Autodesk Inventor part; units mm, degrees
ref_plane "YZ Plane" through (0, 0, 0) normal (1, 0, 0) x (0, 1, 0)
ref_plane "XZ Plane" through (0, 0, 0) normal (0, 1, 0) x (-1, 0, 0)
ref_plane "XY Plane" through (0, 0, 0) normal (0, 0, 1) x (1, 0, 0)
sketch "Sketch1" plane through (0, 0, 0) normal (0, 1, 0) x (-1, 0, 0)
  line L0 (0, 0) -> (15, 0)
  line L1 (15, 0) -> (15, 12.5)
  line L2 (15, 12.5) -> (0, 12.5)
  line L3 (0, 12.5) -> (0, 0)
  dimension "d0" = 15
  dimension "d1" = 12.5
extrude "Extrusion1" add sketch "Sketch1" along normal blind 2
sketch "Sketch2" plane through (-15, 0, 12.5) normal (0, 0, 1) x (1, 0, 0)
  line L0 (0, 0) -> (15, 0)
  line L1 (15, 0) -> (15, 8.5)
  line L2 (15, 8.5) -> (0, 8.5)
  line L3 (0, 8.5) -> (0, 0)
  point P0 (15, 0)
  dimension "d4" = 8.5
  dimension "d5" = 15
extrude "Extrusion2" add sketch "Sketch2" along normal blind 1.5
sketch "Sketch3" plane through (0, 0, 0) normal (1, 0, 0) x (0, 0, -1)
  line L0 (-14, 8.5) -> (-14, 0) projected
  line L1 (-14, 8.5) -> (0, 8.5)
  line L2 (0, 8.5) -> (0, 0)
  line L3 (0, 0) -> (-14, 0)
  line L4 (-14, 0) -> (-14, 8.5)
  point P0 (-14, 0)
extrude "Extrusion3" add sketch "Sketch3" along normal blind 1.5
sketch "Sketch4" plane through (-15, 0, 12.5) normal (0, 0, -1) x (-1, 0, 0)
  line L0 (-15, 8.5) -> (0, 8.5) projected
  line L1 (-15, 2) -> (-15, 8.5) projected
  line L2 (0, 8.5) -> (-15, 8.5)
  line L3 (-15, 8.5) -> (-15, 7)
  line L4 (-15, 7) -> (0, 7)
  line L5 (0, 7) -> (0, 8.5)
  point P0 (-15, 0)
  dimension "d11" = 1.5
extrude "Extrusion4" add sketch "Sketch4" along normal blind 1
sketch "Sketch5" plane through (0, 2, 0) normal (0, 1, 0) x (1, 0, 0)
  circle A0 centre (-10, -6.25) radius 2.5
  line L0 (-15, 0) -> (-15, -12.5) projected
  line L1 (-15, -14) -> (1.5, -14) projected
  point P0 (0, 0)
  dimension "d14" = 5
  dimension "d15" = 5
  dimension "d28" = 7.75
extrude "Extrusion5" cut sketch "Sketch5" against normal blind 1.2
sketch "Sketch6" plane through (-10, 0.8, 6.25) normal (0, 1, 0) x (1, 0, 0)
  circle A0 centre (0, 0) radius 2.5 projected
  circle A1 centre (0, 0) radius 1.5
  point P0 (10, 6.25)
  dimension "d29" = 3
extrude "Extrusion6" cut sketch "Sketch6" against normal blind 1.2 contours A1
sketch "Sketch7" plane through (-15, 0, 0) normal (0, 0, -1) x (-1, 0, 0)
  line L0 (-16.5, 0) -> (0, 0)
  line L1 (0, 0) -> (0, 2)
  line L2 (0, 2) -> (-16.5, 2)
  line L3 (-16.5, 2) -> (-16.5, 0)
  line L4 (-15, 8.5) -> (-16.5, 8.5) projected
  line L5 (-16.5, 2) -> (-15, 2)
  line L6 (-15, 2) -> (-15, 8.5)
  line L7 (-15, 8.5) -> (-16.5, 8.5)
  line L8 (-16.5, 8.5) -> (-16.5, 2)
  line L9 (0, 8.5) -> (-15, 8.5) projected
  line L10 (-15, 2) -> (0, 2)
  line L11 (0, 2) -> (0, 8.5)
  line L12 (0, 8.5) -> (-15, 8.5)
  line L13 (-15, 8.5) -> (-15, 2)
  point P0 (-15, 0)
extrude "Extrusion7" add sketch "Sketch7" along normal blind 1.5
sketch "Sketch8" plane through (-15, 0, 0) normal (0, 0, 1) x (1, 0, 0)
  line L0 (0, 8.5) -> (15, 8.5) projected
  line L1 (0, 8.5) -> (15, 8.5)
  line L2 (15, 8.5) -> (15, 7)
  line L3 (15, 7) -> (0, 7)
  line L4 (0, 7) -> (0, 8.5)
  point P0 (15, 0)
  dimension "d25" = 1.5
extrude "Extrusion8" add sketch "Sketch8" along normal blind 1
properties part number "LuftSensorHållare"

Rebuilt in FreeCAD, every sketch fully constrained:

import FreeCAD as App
import Part
import Sketcher

V = App.Vector
Q = App.Units.Quantity


def add_polygon(sketch, points):
    """Adds a closed chain of lines whose ends are joined by coincident constraints."""
    first, n = sketch.GeometryCount, len(points)
    for a, b in zip(points, points[1:] + points[:1]):
        sketch.addGeometry(Part.LineSegment(App.Vector(*a, 0), App.Vector(*b, 0)), False)
    for i in range(n):
        sketch.addConstraint(Sketcher.Constraint("Coincident", first + i, 2, first + (i + 1) % n, 1))

doc = App.newDocument("Part")
body = doc.addObject("PartDesign::Body", "Body")

# Sketch on XZ plane
sketch1 = body.newObject("Sketcher::SketchObject", "Sketch")
sketch1.AttachmentSupport = (doc.getObject("XZ_Plane"), [""])
sketch1.MapMode = "FlatFace"
add_polygon(sketch1, [(0, 12), (0, 0), (-15, 0), (-15, 12)])  # lines 0-3
sketch1.addConstraint([
    Sketcher.Constraint("Vertical", 0),
    Sketcher.Constraint("Horizontal", 1),
    Sketcher.Constraint("Vertical", 2),
    Sketcher.Constraint("Horizontal", 3),
    Sketcher.Constraint("Coincident", 0, 2, -1, 1),
    Sketcher.Constraint("DistanceX", 1, 2, 1, 1, Q("15 mm")),
    Sketcher.Constraint("DistanceY", 0, 2, 0, 1, Q("12.5 mm")),
])
pad1 = body.newObject("PartDesign::Pad", "Pad")
pad1.Profile = sketch1
pad1.Length = 2
pad1.Reversed = True

# Sketch on XY plane
sketch2 = body.newObject("Sketcher::SketchObject", "Sketch001")
sketch2.AttachmentSupport = (doc.getObject("XY_Plane"), [""])
sketch2.MapMode = "FlatFace"
sketch2.AttachmentOffset = App.Placement(V(0, 0, 12.5), App.Rotation())
add_polygon(sketch2, [(-15, 8), (-15, 0), (0, 0), (0, 8)])  # lines 0-3
sketch2.addConstraint([
    Sketcher.Constraint("Vertical", 0),
    Sketcher.Constraint("Horizontal", 1),
    Sketcher.Constraint("Vertical", 2),
    Sketcher.Constraint("Horizontal", 3),
    Sketcher.Constraint("Coincident", 1, 2, -1, 1),
    Sketcher.Constraint("DistanceX", 1, 1, 1, 2, Q("15 mm")),
    Sketcher.Constraint("DistanceY", 0, 2, 0, 1, Q("8.5 mm")),
])
pad2 = body.newObject("PartDesign::Pad", "Pad001")
pad2.Profile = sketch2
pad2.Length = 1.5

# Sketch on YZ plane
sketch3 = body.newObject("Sketcher::SketchObject", "Sketch002")
sketch3.AttachmentSupport = (doc.getObject("YZ_Plane"), [""])
sketch3.MapMode = "FlatFace"
add_polygon(sketch3, [(8, 0), (8, 14), (0, 14), (0, 0)])  # lines 0-3
sketch3.addConstraint([
    Sketcher.Constraint("Vertical", 0),
    Sketcher.Constraint("Horizontal", 1),
    Sketcher.Constraint("Vertical", 2),
    Sketcher.Constraint("Horizontal", 3),
    Sketcher.Constraint("Coincident", 2, 2, -1, 1),
    Sketcher.Constraint("DistanceY", 0, 1, 0, 2, Q("14 mm")),
    Sketcher.Constraint("DistanceX", 1, 2, 1, 1, Q("8.5 mm")),
])
pad3 = body.newObject("PartDesign::Pad", "Pad002")
pad3.Profile = sketch3
pad3.Length = 1.5

# Sketch on XY plane
sketch4 = body.newObject("Sketcher::SketchObject", "Sketch003")
sketch4.AttachmentSupport = (doc.getObject("XY_Plane"), [""])
sketch4.MapMode = "FlatFace"
sketch4.AttachmentOffset = App.Placement(V(0, 0, 12.5), App.Rotation())
add_polygon(sketch4, [(-15, 8.5), (0, 8.5), (0, 7), (-15, 7)])  # lines 0-3
sketch4.addConstraint([
    Sketcher.Constraint("Horizontal", 0),
    Sketcher.Constraint("Vertical", 1),
    Sketcher.Constraint("Horizontal", 2),
    Sketcher.Constraint("Vertical", 3),
    Sketcher.Constraint("PointOnObject", 0, 2, -2),
    Sketcher.Constraint("DistanceY", 1, 2, 1, 1, Q("1.5 mm")),
    Sketcher.Constraint("DistanceX", 0, 1, 0, 2, Q("15 mm")),
    Sketcher.Constraint("DistanceY", -1, 1, 1, 2, Q("7 mm")),
])
pad4 = body.newObject("PartDesign::Pad", "Pad003")
pad4.Profile = sketch4
pad4.Length = 1
pad4.Reversed = True

# Sketch on XZ plane
sketch5 = body.newObject("Sketcher::SketchObject", "Sketch004")
sketch5.AttachmentSupport = (doc.getObject("XZ_Plane"), [""])
sketch5.MapMode = "FlatFace"
sketch5.AttachmentOffset = App.Placement(V(0, 0, -2), App.Rotation())
sketch5.addGeometry(Part.Circle(V(-10, 6.2, 0), V(0, 0, 1), 2.5), False)
sketch5.addConstraint([
    Sketcher.Constraint("Diameter", 0, Q("5 mm")),
    Sketcher.Constraint("DistanceX", 0, 3, -1, 1, Q("10 mm")),
    Sketcher.Constraint("DistanceY", -1, 1, 0, 3, Q("6.25 mm")),
])
pocket1 = body.newObject("PartDesign::Pocket", "Pocket")
pocket1.Profile = sketch5
pocket1.Length = 1.2
pocket1.Reversed = True

# Sketch on XZ plane
sketch6 = body.newObject("Sketcher::SketchObject", "Sketch005")
sketch6.AttachmentSupport = (doc.getObject("XZ_Plane"), [""])
sketch6.MapMode = "FlatFace"
sketch6.AttachmentOffset = App.Placement(V(0, 0, -0.8), App.Rotation())
sketch6.addGeometry(Part.Circle(V(-10, 6.2, 0), V(0, 0, 1), 1.5), False)
sketch6.addConstraint([
    Sketcher.Constraint("Diameter", 0, Q("3 mm")),
    Sketcher.Constraint("DistanceX", 0, 3, -1, 1, Q("10 mm")),
    Sketcher.Constraint("DistanceY", -1, 1, 0, 3, Q("6.25 mm")),
])
pocket2 = body.newObject("PartDesign::Pocket", "Pocket001")
pocket2.Profile = sketch6
pocket2.Length = 1.2
pocket2.Reversed = True

# Sketch on XY plane
sketch7 = body.newObject("Sketcher::SketchObject", "Sketch006")
sketch7.AttachmentSupport = (doc.getObject("XY_Plane"), [""])
sketch7.MapMode = "FlatFace"
add_polygon(sketch7, [(2, 0), (-15, 0), (-15, 8), (2, 8)])  # lines 0-3
sketch7.addConstraint([
    Sketcher.Constraint("Horizontal", 0),
    Sketcher.Constraint("Vertical", 1),
    Sketcher.Constraint("Horizontal", 2),
    Sketcher.Constraint("Vertical", 3),
    Sketcher.Constraint("PointOnObject", 0, 2, -1),
    Sketcher.Constraint("DistanceX", 0, 2, 0, 1, Q("16.5 mm")),
    Sketcher.Constraint("DistanceY", 1, 1, 1, 2, Q("8.5 mm")),
    Sketcher.Constraint("DistanceX", 0, 2, -1, 1, Q("15 mm")),
])
pad5 = body.newObject("PartDesign::Pad", "Pad004")
pad5.Profile = sketch7
pad5.Length = 1.5
pad5.Reversed = True

# Sketch on XY plane
sketch8 = body.newObject("Sketcher::SketchObject", "Sketch007")
sketch8.AttachmentSupport = (doc.getObject("XY_Plane"), [""])
sketch8.MapMode = "FlatFace"
add_polygon(sketch8, [(0, 8.5), (-15, 8.5), (-15, 7), (0, 7)])  # lines 0-3
sketch8.addConstraint([
    Sketcher.Constraint("Horizontal", 0),
    Sketcher.Constraint("Vertical", 1),
    Sketcher.Constraint("Horizontal", 2),
    Sketcher.Constraint("Vertical", 3),
    Sketcher.Constraint("PointOnObject", 2, 2, -2),
    Sketcher.Constraint("DistanceY", 1, 2, 1, 1, Q("1.5 mm")),
    Sketcher.Constraint("DistanceX", 0, 2, 0, 1, Q("15 mm")),
    Sketcher.Constraint("DistanceY", -1, 1, 1, 2, Q("7 mm")),
])
pad6 = body.newObject("PartDesign::Pad", "Pad005")
pad6.Profile = sketch8
pad6.Length = 1

doc.recompute()
